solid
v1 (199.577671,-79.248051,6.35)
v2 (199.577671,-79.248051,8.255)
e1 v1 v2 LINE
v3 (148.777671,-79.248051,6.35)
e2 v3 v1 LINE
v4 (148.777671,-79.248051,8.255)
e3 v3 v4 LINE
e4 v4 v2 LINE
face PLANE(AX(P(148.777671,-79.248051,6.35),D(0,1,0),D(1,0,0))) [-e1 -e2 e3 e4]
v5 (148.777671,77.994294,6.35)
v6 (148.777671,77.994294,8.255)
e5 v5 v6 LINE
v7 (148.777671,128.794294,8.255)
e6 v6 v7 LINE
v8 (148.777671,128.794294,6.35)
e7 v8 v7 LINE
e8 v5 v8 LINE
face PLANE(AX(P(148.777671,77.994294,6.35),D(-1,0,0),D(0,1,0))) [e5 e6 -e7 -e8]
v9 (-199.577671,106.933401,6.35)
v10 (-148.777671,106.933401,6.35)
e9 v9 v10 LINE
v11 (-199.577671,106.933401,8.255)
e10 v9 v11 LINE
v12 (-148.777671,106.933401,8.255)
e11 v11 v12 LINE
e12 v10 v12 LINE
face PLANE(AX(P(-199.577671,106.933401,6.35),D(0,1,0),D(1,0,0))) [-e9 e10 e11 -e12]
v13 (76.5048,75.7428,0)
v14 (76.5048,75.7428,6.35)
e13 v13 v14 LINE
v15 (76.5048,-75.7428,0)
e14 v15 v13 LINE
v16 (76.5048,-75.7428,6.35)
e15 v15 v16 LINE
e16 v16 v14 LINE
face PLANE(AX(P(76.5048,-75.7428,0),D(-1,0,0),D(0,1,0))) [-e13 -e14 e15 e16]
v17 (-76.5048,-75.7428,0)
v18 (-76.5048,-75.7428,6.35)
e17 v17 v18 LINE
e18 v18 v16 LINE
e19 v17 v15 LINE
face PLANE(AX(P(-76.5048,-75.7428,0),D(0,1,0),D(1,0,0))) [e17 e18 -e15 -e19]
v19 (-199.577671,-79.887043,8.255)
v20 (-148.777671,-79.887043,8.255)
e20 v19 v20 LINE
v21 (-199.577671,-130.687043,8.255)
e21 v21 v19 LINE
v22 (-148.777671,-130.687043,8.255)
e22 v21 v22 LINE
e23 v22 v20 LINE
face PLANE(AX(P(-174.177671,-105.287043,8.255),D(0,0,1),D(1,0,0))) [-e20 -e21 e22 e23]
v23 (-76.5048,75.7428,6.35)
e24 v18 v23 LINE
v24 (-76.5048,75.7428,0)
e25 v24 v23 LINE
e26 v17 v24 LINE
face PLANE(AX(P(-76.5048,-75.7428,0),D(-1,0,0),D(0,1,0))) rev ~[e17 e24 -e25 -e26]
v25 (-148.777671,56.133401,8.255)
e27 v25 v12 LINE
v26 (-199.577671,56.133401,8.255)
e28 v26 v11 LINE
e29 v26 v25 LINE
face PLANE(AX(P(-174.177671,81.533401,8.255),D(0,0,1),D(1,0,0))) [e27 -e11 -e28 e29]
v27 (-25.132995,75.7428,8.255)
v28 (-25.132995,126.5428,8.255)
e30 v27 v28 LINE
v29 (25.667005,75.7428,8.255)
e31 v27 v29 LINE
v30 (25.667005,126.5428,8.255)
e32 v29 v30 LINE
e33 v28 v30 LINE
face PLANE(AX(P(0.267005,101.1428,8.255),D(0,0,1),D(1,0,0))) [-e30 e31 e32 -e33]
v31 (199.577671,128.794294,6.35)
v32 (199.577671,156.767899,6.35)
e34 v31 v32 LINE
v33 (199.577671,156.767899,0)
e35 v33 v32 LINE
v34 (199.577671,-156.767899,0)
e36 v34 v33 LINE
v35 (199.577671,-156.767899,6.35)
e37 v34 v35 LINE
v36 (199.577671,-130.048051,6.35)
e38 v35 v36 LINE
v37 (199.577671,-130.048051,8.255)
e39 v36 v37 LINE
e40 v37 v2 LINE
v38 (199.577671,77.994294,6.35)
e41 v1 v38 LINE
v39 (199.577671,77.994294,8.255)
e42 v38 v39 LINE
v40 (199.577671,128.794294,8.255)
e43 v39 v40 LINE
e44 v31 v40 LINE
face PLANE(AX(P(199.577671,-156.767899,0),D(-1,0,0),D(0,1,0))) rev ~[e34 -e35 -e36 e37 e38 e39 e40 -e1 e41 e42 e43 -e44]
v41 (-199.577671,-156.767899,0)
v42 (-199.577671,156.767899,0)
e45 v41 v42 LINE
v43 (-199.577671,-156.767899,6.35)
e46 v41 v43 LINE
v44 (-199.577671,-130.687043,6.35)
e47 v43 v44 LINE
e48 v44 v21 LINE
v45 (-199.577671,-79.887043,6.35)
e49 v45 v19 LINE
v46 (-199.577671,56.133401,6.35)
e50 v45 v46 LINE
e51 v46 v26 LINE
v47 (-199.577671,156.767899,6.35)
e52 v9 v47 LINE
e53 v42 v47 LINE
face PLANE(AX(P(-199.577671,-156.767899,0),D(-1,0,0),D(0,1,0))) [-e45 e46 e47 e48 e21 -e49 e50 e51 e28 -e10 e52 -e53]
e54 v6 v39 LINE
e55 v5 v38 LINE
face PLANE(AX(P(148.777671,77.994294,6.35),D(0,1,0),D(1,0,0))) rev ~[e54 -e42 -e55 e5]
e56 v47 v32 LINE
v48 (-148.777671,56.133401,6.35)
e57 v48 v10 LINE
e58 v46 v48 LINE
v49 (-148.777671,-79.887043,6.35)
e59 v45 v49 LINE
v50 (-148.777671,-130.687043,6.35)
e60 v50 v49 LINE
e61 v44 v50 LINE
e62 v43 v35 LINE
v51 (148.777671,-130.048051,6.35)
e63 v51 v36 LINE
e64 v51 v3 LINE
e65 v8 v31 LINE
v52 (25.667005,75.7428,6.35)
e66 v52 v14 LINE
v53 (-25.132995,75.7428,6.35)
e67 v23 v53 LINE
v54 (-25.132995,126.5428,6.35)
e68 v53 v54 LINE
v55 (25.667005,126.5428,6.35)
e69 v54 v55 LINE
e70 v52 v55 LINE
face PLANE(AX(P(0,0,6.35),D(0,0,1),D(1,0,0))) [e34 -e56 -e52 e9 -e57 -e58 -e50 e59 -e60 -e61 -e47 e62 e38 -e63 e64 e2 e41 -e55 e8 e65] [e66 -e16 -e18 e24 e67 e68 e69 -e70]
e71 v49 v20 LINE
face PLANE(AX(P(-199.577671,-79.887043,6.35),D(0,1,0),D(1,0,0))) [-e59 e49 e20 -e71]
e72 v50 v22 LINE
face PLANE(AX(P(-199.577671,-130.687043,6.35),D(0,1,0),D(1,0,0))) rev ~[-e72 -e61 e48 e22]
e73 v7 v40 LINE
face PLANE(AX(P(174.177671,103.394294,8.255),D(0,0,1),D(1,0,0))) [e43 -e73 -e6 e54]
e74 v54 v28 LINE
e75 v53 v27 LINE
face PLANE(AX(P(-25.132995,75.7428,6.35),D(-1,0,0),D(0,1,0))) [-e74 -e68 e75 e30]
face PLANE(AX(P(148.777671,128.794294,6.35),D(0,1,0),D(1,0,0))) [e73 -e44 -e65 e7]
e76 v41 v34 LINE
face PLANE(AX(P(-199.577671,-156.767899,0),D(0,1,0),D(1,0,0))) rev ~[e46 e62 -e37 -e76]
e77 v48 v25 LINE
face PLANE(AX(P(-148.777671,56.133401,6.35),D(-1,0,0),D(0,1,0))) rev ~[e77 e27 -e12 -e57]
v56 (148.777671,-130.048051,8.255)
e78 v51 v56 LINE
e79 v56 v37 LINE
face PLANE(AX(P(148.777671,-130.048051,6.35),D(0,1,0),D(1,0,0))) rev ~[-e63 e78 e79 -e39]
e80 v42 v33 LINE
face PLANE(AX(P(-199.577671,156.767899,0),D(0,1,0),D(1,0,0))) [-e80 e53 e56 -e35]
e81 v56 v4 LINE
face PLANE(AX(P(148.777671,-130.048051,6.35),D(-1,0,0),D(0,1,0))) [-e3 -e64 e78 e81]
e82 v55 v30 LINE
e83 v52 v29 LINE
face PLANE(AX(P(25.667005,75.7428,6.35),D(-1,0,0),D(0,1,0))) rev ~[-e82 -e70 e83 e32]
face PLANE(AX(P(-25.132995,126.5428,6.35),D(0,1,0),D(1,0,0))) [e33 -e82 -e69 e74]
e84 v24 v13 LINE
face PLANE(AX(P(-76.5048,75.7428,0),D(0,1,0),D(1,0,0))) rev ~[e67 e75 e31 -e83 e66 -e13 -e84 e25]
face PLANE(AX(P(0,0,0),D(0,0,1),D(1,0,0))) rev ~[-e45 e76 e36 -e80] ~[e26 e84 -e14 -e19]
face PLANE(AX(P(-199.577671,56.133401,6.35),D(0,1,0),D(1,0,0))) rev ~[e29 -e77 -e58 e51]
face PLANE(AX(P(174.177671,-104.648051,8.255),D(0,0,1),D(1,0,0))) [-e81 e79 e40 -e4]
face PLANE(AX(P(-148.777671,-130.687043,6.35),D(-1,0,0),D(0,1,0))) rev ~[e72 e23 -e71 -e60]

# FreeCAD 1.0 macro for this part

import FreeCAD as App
import Part
import Sketcher
from FreeCAD import Vector
Q = App.Units.Quantity

doc = App.newDocument("Part")
body = doc.addObject("PartDesign::Body", "Body")

sketch1 = doc.addObject("Sketcher::SketchObject", "Sketch")
body.addObject(sketch1)
sketch1.AttachmentSupport = (doc.XY_Plane, [""])
sketch1.MapMode = "FlatFace"
sketch1.addGeometry([
    Part.LineSegment(Vector(-199.577671, 156.767899, 0), Vector(-199.577671, -156.767899, 0)),
    Part.LineSegment(Vector(-199.577671, -156.767899, 0), Vector(199.577671, -156.767899, 0)),
    Part.LineSegment(Vector(199.577671, -156.767899, 0), Vector(199.577671, 156.767899, 0)),
    Part.LineSegment(Vector(199.577671, 156.767899, 0), Vector(-199.577671, 156.767899, 0)),
    Part.LineSegment(Vector(76.5048, -75.7428, 0), Vector(-76.5048, -75.7428, 0)),
    Part.LineSegment(Vector(-76.5048, -75.7428, 0), Vector(-76.5048, 75.7428, 0)),
    Part.LineSegment(Vector(-76.5048, 75.7428, 0), Vector(76.5048, 75.7428, 0)),
    Part.LineSegment(Vector(76.5048, 75.7428, 0), Vector(76.5048, -75.7428, 0)),
], False)
sketch1.addConstraint([
    Sketcher.Constraint("Coincident", 0, 2, 1, 1),
    Sketcher.Constraint("Coincident", 1, 2, 2, 1),
    Sketcher.Constraint("Coincident", 2, 2, 3, 1),
    Sketcher.Constraint("Coincident", 3, 2, 0, 1),
    Sketcher.Constraint("Coincident", 4, 2, 5, 1),
    Sketcher.Constraint("Coincident", 5, 2, 6, 1),
    Sketcher.Constraint("Coincident", 6, 2, 7, 1),
    Sketcher.Constraint("Coincident", 7, 2, 4, 1),
    Sketcher.Constraint("Vertical", 0),
    Sketcher.Constraint("Horizontal", 1),
    Sketcher.Constraint("Vertical", 2),
    Sketcher.Constraint("Horizontal", 3),
    Sketcher.Constraint("Horizontal", 4),
    Sketcher.Constraint("Vertical", 5),
    Sketcher.Constraint("Horizontal", 6),
    Sketcher.Constraint("Vertical", 7),
    Sketcher.Constraint("Symmetric", 0, 2, 2, 2, -1, 1),
    Sketcher.Constraint("Symmetric", 4, 2, 6, 2, -1, 1),
    Sketcher.Constraint("DistanceX", 4, 2, 4, 1, Q("6.024 in")),
    Sketcher.Constraint("DistanceY", 5, 1, 5, 2, Q("5.964 in")),
    Sketcher.Constraint("DistanceY", 0, 2, 0, 1, Q("313.535798 mm")),
    Sketcher.Constraint("DistanceX", 1, 1, 1, 2, Q("399.155342 mm")),
])
pad1 = doc.addObject("PartDesign::Pad", "Pad")
body.addObject(pad1)
pad1.Profile = sketch1
pad1.Length = Q("0.25 in")

sketch2 = doc.addObject("Sketcher::SketchObject", "Sketch001")
body.addObject(sketch2)
sketch2.AttachmentSupport = (doc.XY_Plane, [""])
sketch2.MapMode = "FlatFace"
sketch2.AttachmentOffset = App.Placement(Vector(0, 0, 0.25 * 25.4), App.Rotation())
sketch2.addGeometry([
    Part.LineSegment(Vector(-199.577671, -79.887043, 0), Vector(-199.577671, -130.687043, 0)),
    Part.LineSegment(Vector(-199.577671, -130.687043, 0), Vector(-148.777671, -130.687043, 0)),
    Part.LineSegment(Vector(-148.777671, -130.687043, 0), Vector(-148.777671, -79.887043, 0)),
    Part.LineSegment(Vector(-148.777671, -79.887043, 0), Vector(-199.577671, -79.887043, 0)),
    Part.LineSegment(Vector(-199.577671, 106.933401, 0), Vector(-199.577671, 56.133401, 0)),
    Part.LineSegment(Vector(-199.577671, 56.133401, 0), Vector(-148.777671, 56.133401, 0)),
    Part.LineSegment(Vector(-148.777671, 56.133401, 0), Vector(-148.777671, 106.933401, 0)),
    Part.LineSegment(Vector(-148.777671, 106.933401, 0), Vector(-199.577671, 106.933401, 0)),
    Part.LineSegment(Vector(-25.132995, 126.5428, 0), Vector(-25.132995, 75.7428, 0)),
    Part.LineSegment(Vector(-25.132995, 75.7428, 0), Vector(25.667005, 75.7428, 0)),
    Part.LineSegment(Vector(25.667005, 75.7428, 0), Vector(25.667005, 126.5428, 0)),
    Part.LineSegment(Vector(25.667005, 126.5428, 0), Vector(-25.132995, 126.5428, 0)),
    Part.LineSegment(Vector(148.777671, 128.794294, 0), Vector(148.777671, 77.994294, 0)),
    Part.LineSegment(Vector(148.777671, 77.994294, 0), Vector(199.577671, 77.994294, 0)),
    Part.LineSegment(Vector(199.577671, 77.994294, 0), Vector(199.577671, 128.794294, 0)),
    Part.LineSegment(Vector(199.577671, 128.794294, 0), Vector(148.777671, 128.794294, 0)),
    Part.LineSegment(Vector(148.777671, -79.248051, 0), Vector(148.777671, -130.048051, 0)),
    Part.LineSegment(Vector(148.777671, -130.048051, 0), Vector(199.577671, -130.048051, 0)),
    Part.LineSegment(Vector(199.577671, -130.048051, 0), Vector(199.577671, -79.248051, 0)),
    Part.LineSegment(Vector(199.577671, -79.248051, 0), Vector(148.777671, -79.248051, 0)),
], False)
sketch2.addConstraint([
    Sketcher.Constraint("Coincident", 0, 2, 1, 1),
    Sketcher.Constraint("Coincident", 1, 2, 2, 1),
    Sketcher.Constraint("Coincident", 2, 2, 3, 1),
    Sketcher.Constraint("Coincident", 3, 2, 0, 1),
    Sketcher.Constraint("Coincident", 4, 2, 5, 1),
    Sketcher.Constraint("Coincident", 5, 2, 6, 1),
    Sketcher.Constraint("Coincident", 6, 2, 7, 1),
    Sketcher.Constraint("Coincident", 7, 2, 4, 1),
    Sketcher.Constraint("Coincident", 8, 2, 9, 1),
    Sketcher.Constraint("Coincident", 9, 2, 10, 1),
    Sketcher.Constraint("Coincident", 10, 2, 11, 1),
    Sketcher.Constraint("Coincident", 11, 2, 8, 1),
    Sketcher.Constraint("Coincident", 12, 2, 13, 1),
    Sketcher.Constraint("Coincident", 13, 2, 14, 1),
    Sketcher.Constraint("Coincident", 14, 2, 15, 1),
    Sketcher.Constraint("Coincident", 15, 2, 12, 1),
    Sketcher.Constraint("Coincident", 16, 2, 17, 1),
    Sketcher.Constraint("Coincident", 17, 2, 18, 1),
    Sketcher.Constraint("Coincident", 18, 2, 19, 1),
    Sketcher.Constraint("Coincident", 19, 2, 16, 1),
    Sketcher.Constraint("Vertical", 0),
    Sketcher.Constraint("Horizontal", 1),
    Sketcher.Constraint("Vertical", 2),
    Sketcher.Constraint("Horizontal", 3),
    Sketcher.Constraint("Vertical", 4),
    Sketcher.Constraint("Horizontal", 5),
    Sketcher.Constraint("Vertical", 6),
    Sketcher.Constraint("Horizontal", 7),
    Sketcher.Constraint("Vertical", 8),
    Sketcher.Constraint("Horizontal", 9),
    Sketcher.Constraint("Vertical", 10),
    Sketcher.Constraint("Horizontal", 11),
    Sketcher.Constraint("Vertical", 12),
    Sketcher.Constraint("Horizontal", 13),
    Sketcher.Constraint("Vertical", 14),
    Sketcher.Constraint("Horizontal", 15),
    Sketcher.Constraint("Vertical", 16),
    Sketcher.Constraint("Horizontal", 17),
    Sketcher.Constraint("Vertical", 18),
    Sketcher.Constraint("Horizontal", 19),
    Sketcher.Constraint("Vertical", 3, 2, 4, 2),
    Sketcher.Constraint("Vertical", 2, 2, 5, 2),
    Sketcher.Constraint("Vertical", 15, 2, 16, 2),
    Sketcher.Constraint("Vertical", 14, 2, 17, 2),
    Sketcher.Constraint("Equal", 7, 9),
    Sketcher.Constraint("Equal", 11, 13),
    Sketcher.Constraint("Equal", 19, 0),
    Sketcher.Constraint("Equal", 2, 4),
    Sketcher.Constraint("Equal", 6, 8),
    Sketcher.Constraint("Equal", 10, 12),
    Sketcher.Constraint("Equal", 14, 16),
    Sketcher.Constraint("DistanceX", 1, 1, 1, 2, Q("2 in")),
    Sketcher.Constraint("DistanceY", -1, 1, 8, 2, Q("2.982 in")),
    Sketcher.Constraint("DistanceY", -1, 1, 4, 2, Q("56.133401 mm")),
    Sketcher.Constraint("DistanceX", 0, 2, -1, 1, Q("199.577671 mm")),
    Sketcher.Constraint("DistanceX", -1, 1, 12, 2, Q("148.777671 mm")),
    Sketcher.Constraint("DistanceY", 16, 2, -1, 1, Q("130.048051 mm")),
    Sketcher.Constraint("DistanceY", 0, 2, -1, 1, Q("130.687043 mm")),
    Sketcher.Constraint("DistanceX", 8, 2, -1, 1, Q("25.132995 mm")),
    Sketcher.Constraint("DistanceY", -1, 1, 12, 2, Q("77.994294 mm")),
])
pad2 = doc.addObject("PartDesign::Pad", "Pad001")
body.addObject(pad2)
pad2.Profile = sketch2
pad2.Length = Q("0.075 in")

doc.recompute()
